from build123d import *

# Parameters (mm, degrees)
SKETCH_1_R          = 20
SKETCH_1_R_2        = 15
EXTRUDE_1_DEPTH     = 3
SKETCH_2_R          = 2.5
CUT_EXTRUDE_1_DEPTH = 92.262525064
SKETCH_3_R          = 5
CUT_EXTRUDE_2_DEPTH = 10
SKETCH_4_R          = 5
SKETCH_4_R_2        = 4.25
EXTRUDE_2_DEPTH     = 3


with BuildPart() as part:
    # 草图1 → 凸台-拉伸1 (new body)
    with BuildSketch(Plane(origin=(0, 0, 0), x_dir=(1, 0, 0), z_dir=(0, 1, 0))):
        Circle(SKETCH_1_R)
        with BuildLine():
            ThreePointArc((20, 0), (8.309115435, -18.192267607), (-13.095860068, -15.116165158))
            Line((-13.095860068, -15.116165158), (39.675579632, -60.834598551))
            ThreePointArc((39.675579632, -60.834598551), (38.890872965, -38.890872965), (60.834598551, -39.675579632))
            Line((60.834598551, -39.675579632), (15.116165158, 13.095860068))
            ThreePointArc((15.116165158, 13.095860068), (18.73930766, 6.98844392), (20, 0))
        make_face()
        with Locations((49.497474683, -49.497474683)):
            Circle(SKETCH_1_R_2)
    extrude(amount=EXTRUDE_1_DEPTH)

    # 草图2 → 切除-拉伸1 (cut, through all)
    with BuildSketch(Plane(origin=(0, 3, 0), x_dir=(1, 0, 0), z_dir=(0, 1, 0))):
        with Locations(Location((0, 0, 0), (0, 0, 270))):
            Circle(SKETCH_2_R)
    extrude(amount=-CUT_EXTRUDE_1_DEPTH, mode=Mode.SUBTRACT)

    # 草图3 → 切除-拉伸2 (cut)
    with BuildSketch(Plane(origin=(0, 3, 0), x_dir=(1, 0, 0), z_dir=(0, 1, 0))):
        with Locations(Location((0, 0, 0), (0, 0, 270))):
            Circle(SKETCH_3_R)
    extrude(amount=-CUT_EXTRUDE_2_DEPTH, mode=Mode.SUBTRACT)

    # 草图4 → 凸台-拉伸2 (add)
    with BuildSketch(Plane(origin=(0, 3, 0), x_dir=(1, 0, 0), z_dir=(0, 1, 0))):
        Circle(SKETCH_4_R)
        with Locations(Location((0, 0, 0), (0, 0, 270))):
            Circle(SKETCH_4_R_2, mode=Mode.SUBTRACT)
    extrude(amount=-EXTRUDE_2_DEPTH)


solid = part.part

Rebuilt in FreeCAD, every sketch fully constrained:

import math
import FreeCAD as App
import Part
import Sketcher

V = App.Vector

doc = App.newDocument("Part")
body = doc.addObject("PartDesign::Body", "Body")

sketch1 = doc.addObject("Sketcher::SketchObject", "Sketch")
body.addObject(sketch1)
sketch1.AttachmentSupport = (doc.XZ_Plane, [""])
sketch1.MapMode = "FlatFace"
sketch1.addGeometry(Part.ArcOfCircle(Part.Circle(V(0, 0, 0), V(0, 0, 1), 20), math.radians(130.903956), math.radians(319.096044)), False)
sketch1.addGeometry(Part.LineSegment(V(-13.09586, 15.116165, 0), V(39.67558, 60.834599, 0)), False)
sketch1.addGeometry(Part.ArcOfCircle(Part.Circle(V(49.497475, 49.497475, 0), V(0, 0, 1), 15), math.radians(-40.903956), math.radians(130.903956)), False)
sketch1.addGeometry(Part.LineSegment(V(60.834599, 39.67558, 0), V(15.116165, -13.09586, 0)), False)
sketch1.addConstraint(Sketcher.Constraint("Tangent", 0, 1, 1, 1))
sketch1.addConstraint(Sketcher.Constraint("Tangent", 1, 2, 2, 2))
sketch1.addConstraint(Sketcher.Constraint("Tangent", 2, 1, 3, 1))
sketch1.addConstraint(Sketcher.Constraint("Tangent", 3, 2, 0, 2))
sketch1.addConstraint(Sketcher.Constraint("Coincident", 0, 3, -1, 1))
sketch1.addConstraint(Sketcher.Constraint("Radius", 0, 20.0))
sketch1.addConstraint(Sketcher.Constraint("Radius", 2, 15.0))
sketch1.addConstraint(Sketcher.Constraint("Distance", 1, 69.8212))
sketch1.addConstraint(Sketcher.Constraint("DistanceY", -1, 1, 1, 2, 60.834599))
pad1 = doc.addObject("PartDesign::Pad", "Pad")
body.addObject(pad1)
pad1.Profile = sketch1
pad1.Length = 3
pad1.Reversed = True

sketch2 = doc.addObject("Sketcher::SketchObject", "Sketch001")
body.addObject(sketch2)
sketch2.AttachmentSupport = (doc.XZ_Plane, [""])
sketch2.MapMode = "FlatFace"
sketch2.AttachmentOffset = App.Placement(V(0, 0, -3), App.Rotation())
sketch2.addGeometry(Part.Circle(V(0, 0, 0), V(0, 0, 1), 2.5), False)
sketch2.addConstraint(Sketcher.Constraint("Coincident", 0, 3, -1, 1))
sketch2.addConstraint(Sketcher.Constraint("Diameter", 0, 5.0))
pocket1 = doc.addObject("PartDesign::Pocket", "Pocket")
body.addObject(pocket1)
pocket1.Profile = sketch2
pocket1.Type = "ThroughAll"
pocket1.Reversed = True

sketch3 = doc.addObject("Sketcher::SketchObject", "Sketch002")
body.addObject(sketch3)
sketch3.AttachmentSupport = (doc.XZ_Plane, [""])
sketch3.MapMode = "FlatFace"
sketch3.AttachmentOffset = App.Placement(V(0, 0, -3), App.Rotation())
sketch3.addGeometry(Part.Circle(V(0, 0, 0), V(0, 0, 1), 5), False)
sketch3.addConstraint(Sketcher.Constraint("Coincident", 0, 3, -1, 1))
sketch3.addConstraint(Sketcher.Constraint("Diameter", 0, 10.0))
pocket2 = doc.addObject("PartDesign::Pocket", "Pocket001")
body.addObject(pocket2)
pocket2.Profile = sketch3
pocket2.Length = 10
pocket2.Reversed = True

sketch4 = doc.addObject("Sketcher::SketchObject", "Sketch003")
body.addObject(sketch4)
sketch4.AttachmentSupport = (doc.XZ_Plane, [""])
sketch4.MapMode = "FlatFace"
sketch4.AttachmentOffset = App.Placement(V(0, 0, -3), App.Rotation())
sketch4.addGeometry(Part.Circle(V(0, 0, 0), V(0, 0, 1), 5), False)
sketch4.addGeometry(Part.Circle(V(0, 0, 0), V(0, 0, 1), 4.25), False)
sketch4.addConstraint(Sketcher.Constraint("Coincident", 0, 3, -1, 1))
sketch4.addConstraint(Sketcher.Constraint("Coincident", 1, 3, -1, 1))
sketch4.addConstraint(Sketcher.Constraint("Diameter", 0, 10.0))
sketch4.addConstraint(Sketcher.Constraint("Diameter", 1, 8.5))
pad2 = doc.addObject("PartDesign::Pad", "Pad001")
body.addObject(pad2)
pad2.Profile = sketch4
pad2.Length = 3

doc.recompute()
